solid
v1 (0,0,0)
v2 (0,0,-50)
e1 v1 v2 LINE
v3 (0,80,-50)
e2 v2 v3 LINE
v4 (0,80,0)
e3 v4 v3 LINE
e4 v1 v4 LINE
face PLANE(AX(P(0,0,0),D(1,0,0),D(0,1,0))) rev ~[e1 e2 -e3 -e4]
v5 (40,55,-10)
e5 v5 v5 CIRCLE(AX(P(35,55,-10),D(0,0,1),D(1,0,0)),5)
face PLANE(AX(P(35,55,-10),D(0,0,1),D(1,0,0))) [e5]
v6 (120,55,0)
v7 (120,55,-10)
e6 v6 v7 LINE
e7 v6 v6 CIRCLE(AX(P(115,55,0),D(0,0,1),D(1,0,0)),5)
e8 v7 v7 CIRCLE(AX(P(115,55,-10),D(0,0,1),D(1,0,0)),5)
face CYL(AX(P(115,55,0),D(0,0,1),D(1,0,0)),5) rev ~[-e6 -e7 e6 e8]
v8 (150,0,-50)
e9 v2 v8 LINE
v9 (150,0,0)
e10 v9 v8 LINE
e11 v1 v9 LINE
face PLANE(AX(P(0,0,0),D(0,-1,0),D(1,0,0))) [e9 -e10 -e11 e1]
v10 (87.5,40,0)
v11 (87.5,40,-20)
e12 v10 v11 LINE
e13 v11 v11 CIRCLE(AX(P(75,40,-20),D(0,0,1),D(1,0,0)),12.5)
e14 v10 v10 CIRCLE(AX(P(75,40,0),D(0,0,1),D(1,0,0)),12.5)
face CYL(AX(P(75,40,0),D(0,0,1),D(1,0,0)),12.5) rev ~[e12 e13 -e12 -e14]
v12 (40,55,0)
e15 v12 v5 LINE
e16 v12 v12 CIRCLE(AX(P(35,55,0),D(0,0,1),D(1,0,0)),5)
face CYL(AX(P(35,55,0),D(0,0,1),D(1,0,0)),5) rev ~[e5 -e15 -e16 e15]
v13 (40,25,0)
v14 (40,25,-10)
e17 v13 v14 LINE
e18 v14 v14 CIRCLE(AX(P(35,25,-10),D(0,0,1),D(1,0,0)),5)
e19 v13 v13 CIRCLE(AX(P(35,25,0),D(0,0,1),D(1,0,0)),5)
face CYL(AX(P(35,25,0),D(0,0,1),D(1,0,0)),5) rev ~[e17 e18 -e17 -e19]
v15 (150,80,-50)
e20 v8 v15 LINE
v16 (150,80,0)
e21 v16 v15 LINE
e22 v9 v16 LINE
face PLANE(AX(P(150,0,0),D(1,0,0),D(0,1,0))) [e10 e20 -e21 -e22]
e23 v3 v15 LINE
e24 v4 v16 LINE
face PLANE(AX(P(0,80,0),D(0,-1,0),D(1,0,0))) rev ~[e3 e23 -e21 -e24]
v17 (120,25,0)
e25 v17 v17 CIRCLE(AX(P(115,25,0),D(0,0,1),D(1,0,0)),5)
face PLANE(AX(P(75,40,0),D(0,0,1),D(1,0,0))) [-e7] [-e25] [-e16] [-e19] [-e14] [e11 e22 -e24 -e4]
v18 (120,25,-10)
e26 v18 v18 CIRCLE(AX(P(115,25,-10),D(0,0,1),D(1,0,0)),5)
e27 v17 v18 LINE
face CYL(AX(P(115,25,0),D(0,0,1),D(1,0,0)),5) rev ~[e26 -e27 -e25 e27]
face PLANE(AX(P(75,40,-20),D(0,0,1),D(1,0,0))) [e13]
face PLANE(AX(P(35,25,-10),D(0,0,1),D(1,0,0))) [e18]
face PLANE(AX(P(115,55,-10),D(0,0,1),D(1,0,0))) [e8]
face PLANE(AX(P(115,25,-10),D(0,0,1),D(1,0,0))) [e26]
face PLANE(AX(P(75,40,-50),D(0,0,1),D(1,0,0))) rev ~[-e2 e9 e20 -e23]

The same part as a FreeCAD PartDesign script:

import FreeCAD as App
import Part
import Sketcher

doc = App.newDocument("Part")
params = doc.addObject("Spreadsheet::Sheet", "Params")
for row, (alias, value) in enumerate([
    ("sketch1_width", "150 mm"),
    ("sketch1_height", "80 mm"),
    ("pad1_length", "50 mm"),
    ("sketch2_diameter", "25 mm"),
    ("pocket1_length", "20 mm"),
    ("sketch3_diameter", "10 mm"),
    ("pocket2_length", "10 mm"),
], start=1):
    params.set(f"A{row}", alias)
    params.set(f"B{row}", "=" + value)
    params.setAlias(f"B{row}", alias)

body = doc.addObject("PartDesign::Body", "Body")

# Sketch on XY plane
sketch1 = body.newObject("Sketcher::SketchObject", "Sketch")
sketch1.AttachmentSupport = (doc.getObject("XY_Plane"), [""])
sketch1.MapMode = "FlatFace"
sketch1.addGeometry([
    Part.LineSegment(App.Vector(0, 80, 0), App.Vector(0, 0, 0)),
    Part.LineSegment(App.Vector(0, 0, 0), App.Vector(150, 0, 0)),
    Part.LineSegment(App.Vector(150, 0, 0), App.Vector(150, 80, 0)),
    Part.LineSegment(App.Vector(150, 80, 0), App.Vector(0, 80, 0)),
], False)
sketch1.addConstraint([
    Sketcher.Constraint("Coincident", 0, 2, 1, 1),
    Sketcher.Constraint("Coincident", 1, 2, 2, 1),
    Sketcher.Constraint("Coincident", 2, 2, 3, 1),
    Sketcher.Constraint("Coincident", 3, 2, 0, 1),
    Sketcher.Constraint("Vertical", 0),
    Sketcher.Constraint("Horizontal", 1),
    Sketcher.Constraint("Vertical", 2),
    Sketcher.Constraint("Horizontal", 3),
    Sketcher.Constraint("Coincident", 0, 2, -1, 1),
    Sketcher.Constraint("DistanceX", 1, 1, 1, 2, 150.0),
    Sketcher.Constraint("DistanceY", 0, 2, 0, 1, 80.0),
])
sketch1.setExpression("Constraints[9]", "Params.sketch1_width")
sketch1.setExpression("Constraints[10]", "Params.sketch1_height")
pad1 = body.newObject("PartDesign::Pad", "Pad")
pad1.Profile = sketch1
pad1.setExpression("Length", "Params.pad1_length")
pad1.Reversed = True

# Sketch on XY plane
sketch2 = body.newObject("Sketcher::SketchObject", "Sketch001")
sketch2.AttachmentSupport = (doc.getObject("XY_Plane"), [""])
sketch2.MapMode = "FlatFace"
sketch2.addGeometry(Part.Circle(App.Vector(75, 40, 0), App.Vector(0, 0, 1), 12), False)
sketch2.addConstraint([
    Sketcher.Constraint("Diameter", 0, 25.0),
    Sketcher.Constraint("DistanceX", -1, 1, 0, 3, 75.0),
    Sketcher.Constraint("DistanceY", -1, 1, 0, 3, 40.0),
])
sketch2.setExpression("Constraints[0]", "Params.sketch2_diameter")
pocket1 = body.newObject("PartDesign::Pocket", "Pocket")
pocket1.Profile = sketch2
pocket1.setExpression("Length", "Params.pocket1_length")

# Sketch on XY plane
sketch3 = body.newObject("Sketcher::SketchObject", "Sketch002")
sketch3.AttachmentSupport = (doc.getObject("XY_Plane"), [""])
sketch3.MapMode = "FlatFace"
sketch3.addGeometry([
    Part.Circle(App.Vector(35, 55, 0), App.Vector(0, 0, 1), 5),
    Part.Circle(App.Vector(115, 55, 0), App.Vector(0, 0, 1), 5),
    Part.Circle(App.Vector(35, 25, 0), App.Vector(0, 0, 1), 5),
    Part.Circle(App.Vector(115, 25, 0), App.Vector(0, 0, 1), 5),
], False)
sketch3.addConstraint([
    Sketcher.Constraint("Equal", 0, 1),
    Sketcher.Constraint("Equal", 1, 2),
    Sketcher.Constraint("Equal", 2, 3),
    Sketcher.Constraint("Horizontal", 0, 3, 1, 3),
    Sketcher.Constraint("Horizontal", 2, 3, 3, 3),
    Sketcher.Constraint("Vertical", 0, 3, 2, 3),
    Sketcher.Constraint("Vertical", 1, 3, 3, 3),
    Sketcher.Constraint("Diameter", 0, 10.0),
    Sketcher.Constraint("DistanceX", -1, 1, 0, 3, 35.0),
    Sketcher.Constraint("DistanceY", -1, 1, 0, 3, 55.0),
    Sketcher.Constraint("DistanceX", -1, 1, 1, 3, 115.0),
    Sketcher.Constraint("DistanceY", -1, 1, 2, 3, 25.0),
])
sketch3.setExpression("Constraints[7]", "Params.sketch3_diameter")
pocket2 = body.newObject("PartDesign::Pocket", "Pocket001")
pocket2.Profile = sketch3
pocket2.setExpression("Length", "Params.pocket2_length")

doc.recompute()
